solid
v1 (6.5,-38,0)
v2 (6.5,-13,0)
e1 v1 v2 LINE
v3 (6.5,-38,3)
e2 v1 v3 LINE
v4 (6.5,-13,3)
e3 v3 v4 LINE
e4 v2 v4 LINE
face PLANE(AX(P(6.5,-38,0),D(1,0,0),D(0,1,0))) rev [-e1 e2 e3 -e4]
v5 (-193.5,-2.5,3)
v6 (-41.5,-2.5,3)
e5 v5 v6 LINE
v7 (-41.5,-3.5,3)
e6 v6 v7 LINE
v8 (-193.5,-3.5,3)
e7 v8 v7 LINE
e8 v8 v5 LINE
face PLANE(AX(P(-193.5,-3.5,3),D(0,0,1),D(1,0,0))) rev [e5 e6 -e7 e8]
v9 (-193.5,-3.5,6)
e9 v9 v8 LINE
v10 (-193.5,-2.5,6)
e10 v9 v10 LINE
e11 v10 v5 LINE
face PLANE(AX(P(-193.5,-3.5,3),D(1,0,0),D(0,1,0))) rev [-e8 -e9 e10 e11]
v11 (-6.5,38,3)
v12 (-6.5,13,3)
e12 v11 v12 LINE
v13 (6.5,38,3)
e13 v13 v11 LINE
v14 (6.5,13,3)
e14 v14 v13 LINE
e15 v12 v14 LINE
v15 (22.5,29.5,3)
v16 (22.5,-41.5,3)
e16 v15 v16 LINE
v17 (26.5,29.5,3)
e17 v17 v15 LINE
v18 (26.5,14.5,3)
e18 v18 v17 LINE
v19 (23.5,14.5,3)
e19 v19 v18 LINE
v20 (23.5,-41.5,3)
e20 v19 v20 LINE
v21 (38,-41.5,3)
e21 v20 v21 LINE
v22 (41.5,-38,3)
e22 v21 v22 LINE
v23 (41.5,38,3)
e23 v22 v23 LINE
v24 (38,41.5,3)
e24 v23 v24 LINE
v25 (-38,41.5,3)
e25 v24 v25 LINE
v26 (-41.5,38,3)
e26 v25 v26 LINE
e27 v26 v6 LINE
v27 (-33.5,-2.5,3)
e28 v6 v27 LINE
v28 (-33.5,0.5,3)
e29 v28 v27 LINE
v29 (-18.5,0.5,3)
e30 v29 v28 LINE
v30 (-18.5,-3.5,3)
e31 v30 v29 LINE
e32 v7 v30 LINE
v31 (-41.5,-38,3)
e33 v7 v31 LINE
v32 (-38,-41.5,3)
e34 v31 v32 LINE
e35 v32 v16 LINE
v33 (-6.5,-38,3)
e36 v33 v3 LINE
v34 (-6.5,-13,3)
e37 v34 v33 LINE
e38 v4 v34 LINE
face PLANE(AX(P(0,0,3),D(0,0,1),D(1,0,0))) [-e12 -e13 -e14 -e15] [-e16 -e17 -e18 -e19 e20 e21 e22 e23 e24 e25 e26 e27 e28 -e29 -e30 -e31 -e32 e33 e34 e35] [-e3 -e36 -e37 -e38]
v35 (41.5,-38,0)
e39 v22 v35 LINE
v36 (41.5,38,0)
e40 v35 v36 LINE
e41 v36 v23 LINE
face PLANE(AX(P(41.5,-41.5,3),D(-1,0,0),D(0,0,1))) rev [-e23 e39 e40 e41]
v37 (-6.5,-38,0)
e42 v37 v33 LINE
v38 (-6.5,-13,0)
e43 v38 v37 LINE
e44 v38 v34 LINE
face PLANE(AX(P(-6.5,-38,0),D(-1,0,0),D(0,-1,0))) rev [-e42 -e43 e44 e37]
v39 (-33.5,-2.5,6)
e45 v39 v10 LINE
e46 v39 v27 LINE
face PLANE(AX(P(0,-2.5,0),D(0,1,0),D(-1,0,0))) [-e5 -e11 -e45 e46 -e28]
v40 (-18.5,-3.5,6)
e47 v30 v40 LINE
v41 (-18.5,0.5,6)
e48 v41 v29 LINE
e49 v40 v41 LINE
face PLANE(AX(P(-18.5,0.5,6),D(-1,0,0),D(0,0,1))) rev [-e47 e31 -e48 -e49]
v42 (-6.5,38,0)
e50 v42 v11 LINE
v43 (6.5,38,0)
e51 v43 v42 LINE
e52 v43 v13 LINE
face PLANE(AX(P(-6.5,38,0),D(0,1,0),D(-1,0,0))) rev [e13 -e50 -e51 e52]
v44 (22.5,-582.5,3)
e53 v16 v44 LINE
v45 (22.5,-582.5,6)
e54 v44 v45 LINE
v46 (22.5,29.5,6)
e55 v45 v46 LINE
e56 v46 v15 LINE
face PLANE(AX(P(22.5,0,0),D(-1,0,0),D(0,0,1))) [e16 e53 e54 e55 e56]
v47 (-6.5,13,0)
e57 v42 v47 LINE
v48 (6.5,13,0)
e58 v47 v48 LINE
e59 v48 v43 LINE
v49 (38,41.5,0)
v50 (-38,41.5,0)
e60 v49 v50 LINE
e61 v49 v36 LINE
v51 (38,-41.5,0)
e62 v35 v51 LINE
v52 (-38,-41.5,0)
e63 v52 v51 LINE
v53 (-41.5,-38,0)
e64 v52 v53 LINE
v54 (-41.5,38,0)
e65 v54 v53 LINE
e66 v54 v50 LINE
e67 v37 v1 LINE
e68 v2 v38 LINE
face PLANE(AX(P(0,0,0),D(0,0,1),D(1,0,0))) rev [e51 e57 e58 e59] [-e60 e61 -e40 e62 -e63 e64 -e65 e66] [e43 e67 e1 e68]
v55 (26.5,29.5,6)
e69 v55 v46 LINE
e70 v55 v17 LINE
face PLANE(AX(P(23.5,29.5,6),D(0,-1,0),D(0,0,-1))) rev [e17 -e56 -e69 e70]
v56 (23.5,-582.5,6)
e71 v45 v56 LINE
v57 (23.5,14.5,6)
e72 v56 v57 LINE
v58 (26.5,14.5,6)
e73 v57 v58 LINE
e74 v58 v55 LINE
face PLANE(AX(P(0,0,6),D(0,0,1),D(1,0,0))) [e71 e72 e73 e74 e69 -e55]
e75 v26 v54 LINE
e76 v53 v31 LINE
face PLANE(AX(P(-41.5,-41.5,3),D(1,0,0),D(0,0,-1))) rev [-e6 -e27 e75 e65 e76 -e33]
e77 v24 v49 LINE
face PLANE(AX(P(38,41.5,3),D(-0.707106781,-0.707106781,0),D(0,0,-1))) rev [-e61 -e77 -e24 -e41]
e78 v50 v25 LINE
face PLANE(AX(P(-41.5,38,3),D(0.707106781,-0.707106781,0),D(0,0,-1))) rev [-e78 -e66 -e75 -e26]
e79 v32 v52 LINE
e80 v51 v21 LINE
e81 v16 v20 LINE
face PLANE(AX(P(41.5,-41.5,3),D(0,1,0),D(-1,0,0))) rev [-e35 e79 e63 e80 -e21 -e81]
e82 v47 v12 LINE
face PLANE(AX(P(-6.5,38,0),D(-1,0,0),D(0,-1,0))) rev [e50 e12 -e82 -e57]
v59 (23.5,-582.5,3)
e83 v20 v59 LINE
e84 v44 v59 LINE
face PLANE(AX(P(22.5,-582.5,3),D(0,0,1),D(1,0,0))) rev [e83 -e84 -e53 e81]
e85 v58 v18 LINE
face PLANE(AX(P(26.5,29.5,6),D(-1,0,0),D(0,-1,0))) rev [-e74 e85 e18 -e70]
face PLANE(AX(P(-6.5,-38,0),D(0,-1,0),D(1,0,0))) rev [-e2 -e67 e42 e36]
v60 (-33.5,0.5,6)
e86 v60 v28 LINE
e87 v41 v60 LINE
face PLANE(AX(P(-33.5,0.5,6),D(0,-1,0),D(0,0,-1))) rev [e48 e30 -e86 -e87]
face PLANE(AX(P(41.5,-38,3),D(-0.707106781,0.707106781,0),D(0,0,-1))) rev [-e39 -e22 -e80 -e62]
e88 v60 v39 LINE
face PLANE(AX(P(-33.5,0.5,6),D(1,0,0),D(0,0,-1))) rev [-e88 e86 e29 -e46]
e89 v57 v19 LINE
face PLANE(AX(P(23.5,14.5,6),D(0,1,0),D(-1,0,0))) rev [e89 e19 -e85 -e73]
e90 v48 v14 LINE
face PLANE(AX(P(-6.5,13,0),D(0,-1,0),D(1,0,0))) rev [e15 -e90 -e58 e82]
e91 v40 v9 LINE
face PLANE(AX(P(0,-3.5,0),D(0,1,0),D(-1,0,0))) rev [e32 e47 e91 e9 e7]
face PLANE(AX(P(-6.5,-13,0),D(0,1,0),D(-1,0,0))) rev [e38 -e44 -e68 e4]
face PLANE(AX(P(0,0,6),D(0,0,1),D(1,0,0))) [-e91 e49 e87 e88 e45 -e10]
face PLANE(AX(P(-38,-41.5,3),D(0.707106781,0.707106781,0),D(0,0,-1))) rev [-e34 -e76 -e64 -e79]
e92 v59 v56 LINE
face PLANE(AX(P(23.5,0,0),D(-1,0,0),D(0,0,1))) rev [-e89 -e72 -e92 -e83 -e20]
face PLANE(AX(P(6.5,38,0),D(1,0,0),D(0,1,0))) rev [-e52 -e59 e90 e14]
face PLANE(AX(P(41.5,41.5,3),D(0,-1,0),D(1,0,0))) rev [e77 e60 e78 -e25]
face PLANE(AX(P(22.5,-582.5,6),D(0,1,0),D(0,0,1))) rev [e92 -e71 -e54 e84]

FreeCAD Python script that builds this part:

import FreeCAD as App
import Part
import Sketcher

V = App.Vector
Q = App.Units.Quantity


def edges_at(feature, points):
    """Names of the edges that pass closest to the given points."""
    edges = feature.Shape.Edges
    near = lambda p: min(range(len(edges)), key=lambda i: edges[i].distToShape(Part.Vertex(*p))[0])
    return sorted({f"Edge{near(p) + 1}" for p in points})


def add_polygon(sketch, points):
    """Adds a closed chain of lines whose ends are joined by coincident constraints."""
    first, n = sketch.GeometryCount, len(points)
    for a, b in zip(points, points[1:] + points[:1]):
        sketch.addGeometry(Part.LineSegment(App.Vector(*a, 0), App.Vector(*b, 0)), False)
    for i in range(n):
        sketch.addConstraint(Sketcher.Constraint("Coincident", first + i, 2, first + (i + 1) % n, 1))

doc = App.newDocument("Part")
body = doc.addObject("PartDesign::Body", "Body")

sketch1 = doc.addObject("Sketcher::SketchObject", "Sketch")
body.addObject(sketch1)
sketch1.AttachmentSupport = (doc.XY_Plane, [""])
sketch1.MapMode = "FlatFace"
add_polygon(sketch1, [(-42, 42), (-42, -42), (42, -42), (42, 42)])
sketch1.addConstraint([
    Sketcher.Constraint("Vertical", 0),
    Sketcher.Constraint("Horizontal", 1),
    Sketcher.Constraint("Vertical", 2),
    Sketcher.Constraint("Horizontal", 3),
    Sketcher.Constraint("Symmetric", 0, 2, 2, 2, -1, 1),
    Sketcher.Constraint("Equal", 3, 0),
    Sketcher.Constraint("DistanceX", 1, 1, 1, 2, Q("83 mm")),
])
pad1 = doc.addObject("PartDesign::Pad", "Pad")
body.addObject(pad1)
pad1.Profile = sketch1
pad1.Length = 3

sketch2 = doc.addObject("Sketcher::SketchObject", "Sketch001")
body.addObject(sketch2)
sketch2.AttachmentSupport = (doc.XY_Plane, [""])
sketch2.MapMode = "FlatFace"
sketch2.AttachmentOffset = App.Placement(V(0, 0, 3), App.Rotation())
add_polygon(sketch2, [(-6, 38), (-6, 13), (6, 13), (6, 38)])
add_polygon(sketch2, [(-6, -13), (-6, -38), (6, -38), (6, -13)])
sketch2.addConstraint([
    Sketcher.Constraint("Vertical", 0),
    Sketcher.Constraint("Horizontal", 1),
    Sketcher.Constraint("Vertical", 2),
    Sketcher.Constraint("Horizontal", 3),
    Sketcher.Constraint("Vertical", 4),
    Sketcher.Constraint("Horizontal", 5),
    Sketcher.Constraint("Vertical", 6),
    Sketcher.Constraint("Horizontal", 7),
    Sketcher.Constraint("Symmetric", 2, 2, 4, 2, -1, 1),
    Sketcher.Constraint("Symmetric", 0, 2, 6, 2, -1, 1),
    Sketcher.Constraint("Vertical", 3, 2, 4, 2),
    Sketcher.Constraint("DistanceX", 1, 1, 1, 2, Q("13 mm")),
    Sketcher.Constraint("DistanceY", 0, 2, 0, 1, Q("25 mm")),
    Sketcher.Constraint("DistanceY", -1, 1, 0, 2, Q("13 mm")),
])
pocket1 = doc.addObject("PartDesign::Pocket", "Pocket")
body.addObject(pocket1)
pocket1.Profile = sketch2
pocket1.Length = 3
doc.recompute()

chamfer = doc.addObject("PartDesign::Chamfer", "Chamfer")
body.addObject(chamfer)
chamfer.Base = (pocket1, edges_at(pocket1, [
    (-41.5, 41.5, 1.5),
    (41.5, 41.5, 1.5),
    (41.5, -41.5, 1.5),
    (-41.5, -41.5, 1.5),
]))
chamfer.Size = 3.5

sketch3 = doc.addObject("Sketcher::SketchObject", "Sketch002")
body.addObject(sketch3)
sketch3.AttachmentSupport = (doc.XY_Plane, [""])
sketch3.MapMode = "FlatFace"
sketch3.AttachmentOffset = App.Placement(V(0, 0, 3), App.Rotation())
add_polygon(sketch3, [(-33.5, 0.5), (-33.5, -2.5), (-18.5, -2.5), (-18.5, 0.5)])
add_polygon(sketch3, [(23.5, 29.5), (23.5, 14.5), (26.5, 14.5), (26.5, 29.5)])
sketch3.addConstraint([
    Sketcher.Constraint("Vertical", 0),
    Sketcher.Constraint("Horizontal", 1),
    Sketcher.Constraint("Vertical", 2),
    Sketcher.Constraint("Horizontal", 3),
    Sketcher.Constraint("Vertical", 4),
    Sketcher.Constraint("Horizontal", 5),
    Sketcher.Constraint("Vertical", 6),
    Sketcher.Constraint("Horizontal", 7),
    Sketcher.Constraint("Equal", 7, 0),
    Sketcher.Constraint("Equal", 3, 4),
    Sketcher.Constraint("DistanceX", 1, 1, 1, 2, Q("15 mm")),
    Sketcher.Constraint("DistanceX", 5, 1, 5, 2, Q("3 mm")),
    Sketcher.Constraint("DistanceX", 2, 2, 4, 2, Q("42 mm")),
    Sketcher.Constraint("DistanceY", 2, 2, 4, 2, Q("14 mm")),
    Sketcher.Constraint("DistanceX", 0, 2, -1, 1, Q("33.5 mm")),
    Sketcher.Constraint("DistanceY", 0, 2, -1, 1, Q("2.5 mm")),
])
pad2 = doc.addObject("PartDesign::Pad", "Pad001")
body.addObject(pad2)
pad2.Profile = sketch3
pad2.Length = 3

sketch4 = doc.addObject("Sketcher::SketchObject", "Sketch003")
body.addObject(sketch4)
sketch4.AttachmentSupport = (doc.YZ_Plane, [""])
sketch4.MapMode = "FlatFace"
sketch4.AttachmentOffset = App.Placement(V(0, 0, 23.5), App.Rotation())
add_polygon(sketch4, [(29.5, 3), (-582.5, 3), (-582.5, 6), (29.5, 6)])
sketch4.addConstraint([
    Sketcher.Constraint("Horizontal", 0),
    Sketcher.Constraint("Vertical", 1),
    Sketcher.Constraint("Horizontal", 2),
    Sketcher.Constraint("Vertical", 3),
    Sketcher.Constraint("DistanceX", 0, 2, 0, 1, Q("612 mm")),
    Sketcher.Constraint("DistanceY", 1, 1, 1, 2, Q("3 mm")),
    Sketcher.Constraint("DistanceY", -1, 1, 0, 2, Q("3 mm")),
    Sketcher.Constraint("DistanceX", 0, 2, -1, 1, Q("582.5 mm")),
])
pad3 = doc.addObject("PartDesign::Pad", "Pad002")
body.addObject(pad3)
pad3.Profile = sketch4
pad3.Length = 1
pad3.Reversed = True

sketch5 = doc.addObject("Sketcher::SketchObject", "Sketch004")
body.addObject(sketch5)
sketch5.AttachmentSupport = (doc.XZ_Plane, [""])
sketch5.MapMode = "FlatFace"
sketch5.AttachmentOffset = App.Placement(V(0, 0, 2.5), App.Rotation())
add_polygon(sketch5, [(-193.5, 6), (-193.5, 3), (-18.5, 3), (-18.5, 6)])
sketch5.addConstraint([
    Sketcher.Constraint("Vertical", 0),
    Sketcher.Constraint("Horizontal", 1),
    Sketcher.Constraint("Vertical", 2),
    Sketcher.Constraint("Horizontal", 3),
    Sketcher.Constraint("DistanceX", 1, 1, 1, 2, Q("175 mm")),
    Sketcher.Constraint("DistanceY", 0, 2, 0, 1, Q("3 mm")),
    Sketcher.Constraint("DistanceY", -1, 1, 0, 2, Q("3 mm")),
    Sketcher.Constraint("DistanceX", 0, 2, -1, 1, Q("193.5 mm")),
])
pad4 = doc.addObject("PartDesign::Pad", "Pad003")
body.addObject(pad4)
pad4.Profile = sketch5
pad4.Length = 1

doc.recompute()
